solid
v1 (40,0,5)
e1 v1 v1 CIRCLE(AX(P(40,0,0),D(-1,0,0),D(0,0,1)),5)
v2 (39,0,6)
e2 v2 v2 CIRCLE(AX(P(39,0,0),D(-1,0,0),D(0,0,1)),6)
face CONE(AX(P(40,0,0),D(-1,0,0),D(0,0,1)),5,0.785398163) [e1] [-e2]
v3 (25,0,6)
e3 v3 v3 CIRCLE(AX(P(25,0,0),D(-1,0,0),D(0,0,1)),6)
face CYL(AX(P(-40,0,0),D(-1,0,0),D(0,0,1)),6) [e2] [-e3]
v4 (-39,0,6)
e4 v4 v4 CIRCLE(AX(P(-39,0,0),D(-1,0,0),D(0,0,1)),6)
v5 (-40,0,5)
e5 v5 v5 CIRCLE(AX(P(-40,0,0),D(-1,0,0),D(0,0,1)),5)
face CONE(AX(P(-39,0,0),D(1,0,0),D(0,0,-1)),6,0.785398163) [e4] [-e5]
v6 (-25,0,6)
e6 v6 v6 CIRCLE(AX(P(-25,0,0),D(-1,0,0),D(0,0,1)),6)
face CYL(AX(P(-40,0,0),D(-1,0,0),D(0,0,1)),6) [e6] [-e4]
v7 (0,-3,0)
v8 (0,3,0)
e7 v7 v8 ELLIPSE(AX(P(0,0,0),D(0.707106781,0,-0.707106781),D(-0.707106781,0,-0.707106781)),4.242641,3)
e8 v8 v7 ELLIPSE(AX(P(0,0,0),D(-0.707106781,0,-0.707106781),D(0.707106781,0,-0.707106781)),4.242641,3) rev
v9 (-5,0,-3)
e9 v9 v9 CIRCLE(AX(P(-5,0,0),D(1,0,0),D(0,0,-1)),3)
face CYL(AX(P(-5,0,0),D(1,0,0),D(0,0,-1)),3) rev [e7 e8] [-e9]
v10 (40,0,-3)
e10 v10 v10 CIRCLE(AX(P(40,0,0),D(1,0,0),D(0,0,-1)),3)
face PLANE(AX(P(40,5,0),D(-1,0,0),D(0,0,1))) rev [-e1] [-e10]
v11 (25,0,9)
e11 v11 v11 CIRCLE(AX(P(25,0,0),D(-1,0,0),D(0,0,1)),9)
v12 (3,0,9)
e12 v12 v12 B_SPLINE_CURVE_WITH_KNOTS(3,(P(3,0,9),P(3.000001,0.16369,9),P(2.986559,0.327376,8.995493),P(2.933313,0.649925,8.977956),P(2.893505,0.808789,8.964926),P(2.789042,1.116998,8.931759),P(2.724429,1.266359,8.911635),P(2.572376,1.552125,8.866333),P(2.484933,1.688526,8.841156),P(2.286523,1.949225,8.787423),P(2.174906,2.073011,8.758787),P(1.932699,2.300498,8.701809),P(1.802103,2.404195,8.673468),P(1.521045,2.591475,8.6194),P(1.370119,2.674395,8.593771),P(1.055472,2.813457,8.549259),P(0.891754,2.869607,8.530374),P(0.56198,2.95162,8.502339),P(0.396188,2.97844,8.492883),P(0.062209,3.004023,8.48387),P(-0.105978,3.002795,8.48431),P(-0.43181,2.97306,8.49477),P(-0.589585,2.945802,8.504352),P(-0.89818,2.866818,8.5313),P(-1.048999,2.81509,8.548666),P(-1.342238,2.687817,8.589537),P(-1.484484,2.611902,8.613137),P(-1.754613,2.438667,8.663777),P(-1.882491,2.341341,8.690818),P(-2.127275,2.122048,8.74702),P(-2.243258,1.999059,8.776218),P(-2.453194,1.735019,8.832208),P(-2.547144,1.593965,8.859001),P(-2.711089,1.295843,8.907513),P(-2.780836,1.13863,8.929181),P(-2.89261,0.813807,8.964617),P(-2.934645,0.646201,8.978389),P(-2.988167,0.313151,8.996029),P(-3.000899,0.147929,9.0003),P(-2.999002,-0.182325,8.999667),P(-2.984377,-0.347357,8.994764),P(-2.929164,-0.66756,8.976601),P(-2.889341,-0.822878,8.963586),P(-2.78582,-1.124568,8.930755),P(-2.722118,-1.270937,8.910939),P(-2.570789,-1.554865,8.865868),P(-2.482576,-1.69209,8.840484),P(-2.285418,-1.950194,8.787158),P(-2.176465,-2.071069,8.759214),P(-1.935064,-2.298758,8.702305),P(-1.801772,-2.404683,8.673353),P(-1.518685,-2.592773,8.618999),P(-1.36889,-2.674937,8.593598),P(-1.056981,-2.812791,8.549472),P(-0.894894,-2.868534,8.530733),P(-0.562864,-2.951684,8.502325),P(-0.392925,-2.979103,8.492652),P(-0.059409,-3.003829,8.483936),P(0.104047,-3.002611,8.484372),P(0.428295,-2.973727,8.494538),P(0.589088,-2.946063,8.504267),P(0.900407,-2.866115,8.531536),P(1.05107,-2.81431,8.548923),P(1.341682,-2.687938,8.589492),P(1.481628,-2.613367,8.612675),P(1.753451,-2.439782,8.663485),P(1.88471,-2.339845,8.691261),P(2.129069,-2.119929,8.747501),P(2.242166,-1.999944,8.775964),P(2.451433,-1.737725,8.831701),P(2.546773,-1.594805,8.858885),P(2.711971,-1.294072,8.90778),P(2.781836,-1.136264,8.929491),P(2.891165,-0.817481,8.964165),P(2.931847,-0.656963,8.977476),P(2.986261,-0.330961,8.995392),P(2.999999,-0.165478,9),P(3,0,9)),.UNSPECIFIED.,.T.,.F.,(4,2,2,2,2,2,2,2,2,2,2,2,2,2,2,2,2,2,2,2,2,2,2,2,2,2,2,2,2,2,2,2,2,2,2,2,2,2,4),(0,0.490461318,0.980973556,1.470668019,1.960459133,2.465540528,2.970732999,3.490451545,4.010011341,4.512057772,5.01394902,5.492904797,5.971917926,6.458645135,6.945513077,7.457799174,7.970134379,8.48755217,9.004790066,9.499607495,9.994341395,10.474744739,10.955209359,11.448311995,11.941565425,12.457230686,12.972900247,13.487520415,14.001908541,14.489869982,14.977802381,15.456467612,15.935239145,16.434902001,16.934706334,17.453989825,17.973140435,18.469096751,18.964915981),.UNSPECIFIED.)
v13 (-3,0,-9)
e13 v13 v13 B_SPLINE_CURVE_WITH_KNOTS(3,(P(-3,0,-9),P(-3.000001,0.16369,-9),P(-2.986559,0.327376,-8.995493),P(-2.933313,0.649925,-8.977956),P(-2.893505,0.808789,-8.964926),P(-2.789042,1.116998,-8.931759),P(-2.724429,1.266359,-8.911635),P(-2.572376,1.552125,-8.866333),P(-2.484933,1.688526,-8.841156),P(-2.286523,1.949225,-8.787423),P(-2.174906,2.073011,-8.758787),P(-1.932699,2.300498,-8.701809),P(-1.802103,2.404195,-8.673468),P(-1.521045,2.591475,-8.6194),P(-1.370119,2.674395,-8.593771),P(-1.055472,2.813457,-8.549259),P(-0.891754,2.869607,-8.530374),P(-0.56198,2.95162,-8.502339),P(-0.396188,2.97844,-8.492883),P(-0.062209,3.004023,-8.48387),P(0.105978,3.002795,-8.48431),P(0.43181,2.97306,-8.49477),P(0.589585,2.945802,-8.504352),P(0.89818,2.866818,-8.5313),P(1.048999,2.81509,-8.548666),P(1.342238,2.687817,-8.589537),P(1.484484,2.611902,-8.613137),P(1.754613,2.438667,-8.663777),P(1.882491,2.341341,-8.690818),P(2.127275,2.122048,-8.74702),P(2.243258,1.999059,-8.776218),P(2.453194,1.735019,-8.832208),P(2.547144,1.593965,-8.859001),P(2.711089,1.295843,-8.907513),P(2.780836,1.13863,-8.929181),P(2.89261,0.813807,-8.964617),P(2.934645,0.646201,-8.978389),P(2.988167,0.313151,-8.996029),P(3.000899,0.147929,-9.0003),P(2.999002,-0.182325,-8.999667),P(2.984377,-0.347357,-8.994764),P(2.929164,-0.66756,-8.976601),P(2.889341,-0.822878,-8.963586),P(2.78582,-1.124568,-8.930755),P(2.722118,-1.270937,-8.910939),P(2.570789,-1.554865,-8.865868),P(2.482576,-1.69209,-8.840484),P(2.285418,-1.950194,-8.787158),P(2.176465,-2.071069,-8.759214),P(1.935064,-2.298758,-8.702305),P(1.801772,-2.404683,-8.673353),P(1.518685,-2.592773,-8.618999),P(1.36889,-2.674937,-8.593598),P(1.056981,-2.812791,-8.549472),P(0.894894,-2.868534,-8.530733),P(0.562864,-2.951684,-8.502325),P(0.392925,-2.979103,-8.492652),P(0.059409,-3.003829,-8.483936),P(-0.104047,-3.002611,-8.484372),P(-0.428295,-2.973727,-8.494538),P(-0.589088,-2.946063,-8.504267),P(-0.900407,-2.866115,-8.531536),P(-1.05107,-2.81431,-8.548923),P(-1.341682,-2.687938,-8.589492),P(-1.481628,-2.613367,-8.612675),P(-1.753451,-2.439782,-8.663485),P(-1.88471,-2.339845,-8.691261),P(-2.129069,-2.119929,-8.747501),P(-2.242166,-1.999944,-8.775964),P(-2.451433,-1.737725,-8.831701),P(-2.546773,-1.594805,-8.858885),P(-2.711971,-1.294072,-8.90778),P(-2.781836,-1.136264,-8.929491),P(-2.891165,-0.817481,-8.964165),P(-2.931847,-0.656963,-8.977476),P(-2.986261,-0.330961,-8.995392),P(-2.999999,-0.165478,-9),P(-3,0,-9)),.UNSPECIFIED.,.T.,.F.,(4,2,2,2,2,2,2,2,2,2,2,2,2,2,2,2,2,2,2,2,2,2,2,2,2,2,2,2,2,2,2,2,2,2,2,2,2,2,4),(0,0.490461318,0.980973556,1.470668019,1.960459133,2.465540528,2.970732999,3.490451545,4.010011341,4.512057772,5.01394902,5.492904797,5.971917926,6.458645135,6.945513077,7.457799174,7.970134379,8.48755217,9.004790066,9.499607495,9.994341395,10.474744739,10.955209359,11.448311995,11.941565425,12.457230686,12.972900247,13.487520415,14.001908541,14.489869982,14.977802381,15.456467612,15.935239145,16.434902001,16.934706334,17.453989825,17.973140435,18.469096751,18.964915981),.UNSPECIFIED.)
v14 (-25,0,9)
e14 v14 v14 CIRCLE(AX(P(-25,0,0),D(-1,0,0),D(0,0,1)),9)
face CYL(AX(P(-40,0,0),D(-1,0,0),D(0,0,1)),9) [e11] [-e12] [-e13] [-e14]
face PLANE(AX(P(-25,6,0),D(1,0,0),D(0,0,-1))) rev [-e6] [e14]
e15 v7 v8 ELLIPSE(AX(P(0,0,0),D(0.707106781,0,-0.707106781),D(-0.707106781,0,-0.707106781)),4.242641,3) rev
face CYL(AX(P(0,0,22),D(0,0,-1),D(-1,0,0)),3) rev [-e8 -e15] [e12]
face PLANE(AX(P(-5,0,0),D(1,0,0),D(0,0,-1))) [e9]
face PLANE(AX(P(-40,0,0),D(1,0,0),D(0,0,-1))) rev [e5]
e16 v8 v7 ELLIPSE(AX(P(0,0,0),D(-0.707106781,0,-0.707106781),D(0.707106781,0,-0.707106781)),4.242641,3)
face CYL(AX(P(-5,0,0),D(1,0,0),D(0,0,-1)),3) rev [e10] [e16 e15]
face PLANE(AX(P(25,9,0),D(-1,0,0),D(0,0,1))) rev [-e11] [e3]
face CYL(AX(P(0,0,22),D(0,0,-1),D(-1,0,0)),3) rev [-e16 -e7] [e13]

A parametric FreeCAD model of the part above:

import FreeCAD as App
import Part
import Sketcher

V = App.Vector

doc = App.newDocument("Part")
body = doc.addObject("PartDesign::Body", "Body")

# Sketch on XY plane
sketch1 = body.newObject("Sketcher::SketchObject", "Sketch")
sketch1.AttachmentSupport = (doc.getObject("XY_Plane"), [""])
sketch1.MapMode = "FlatFace"
sketch1.addGeometry([
    Part.LineSegment(V(-40, 0, 0), V(40, 0, 0)),  # 0
    Part.LineSegment(V(40, 0, 0), V(40, 5, 0)),  # 1
    Part.LineSegment(V(40, 5, 0), V(39, 6, 0)),  # 2
    Part.LineSegment(V(39, 6, 0), V(25, 6, 0)),  # 3
    Part.LineSegment(V(25, 6, 0), V(25, 9, 0)),  # 4
    Part.LineSegment(V(25, 9, 0), V(-25, 9, 0)),  # 5
    Part.LineSegment(V(-25, 9, 0), V(-25, 6, 0)),  # 6
    Part.LineSegment(V(-25, 6, 0), V(-39, 6, 0)),  # 7
    Part.LineSegment(V(-39, 6, 0), V(-40, 5, 0)),  # 8
    Part.LineSegment(V(-40, 5, 0), V(-40, 0, 0)),  # 9
], False)
sketch1.addConstraint([
    Sketcher.Constraint("Coincident", 0, 2, 1, 1),
    Sketcher.Constraint("Coincident", 1, 2, 2, 1),
    Sketcher.Constraint("Coincident", 2, 2, 3, 1),
    Sketcher.Constraint("Coincident", 3, 2, 4, 1),
    Sketcher.Constraint("Coincident", 4, 2, 5, 1),
    Sketcher.Constraint("Coincident", 5, 2, 6, 1),
    Sketcher.Constraint("Coincident", 6, 2, 7, 1),
    Sketcher.Constraint("Coincident", 7, 2, 8, 1),
    Sketcher.Constraint("Coincident", 8, 2, 9, 1),
    Sketcher.Constraint("Coincident", 9, 2, 0, 1),
    Sketcher.Constraint("Horizontal", 0),
    Sketcher.Constraint("Vertical", 1),
    Sketcher.Constraint("Horizontal", 3),
    Sketcher.Constraint("Vertical", 4),
    Sketcher.Constraint("Horizontal", 5),
    Sketcher.Constraint("Vertical", 6),
    Sketcher.Constraint("Horizontal", 7),
    Sketcher.Constraint("Vertical", 9),
    Sketcher.Constraint("Symmetric", 0, 2, 9, 2, -1, 1),
    Sketcher.Constraint("Symmetric", 3, 2, 6, 2, -2),
    Sketcher.Constraint("Perpendicular", 2, 8),
    Sketcher.Constraint("Horizontal", 1, 2, 8, 2),
    Sketcher.Constraint("Equal", 3, 7),
    Sketcher.Constraint("DistanceX", 0, 1, 0, 2, 80.0),
    Sketcher.Constraint("DistanceX", 3, 2, 3, 1, 14.0),
    Sketcher.Constraint("DistanceX", 5, 2, 5, 1, 50.0),
    Sketcher.Constraint("DistanceY", 1, 1, 1, 2, 5.0),
    Sketcher.Constraint("DistanceY", 4, 1, 4, 2, 3.0),
])
revolution = body.newObject("PartDesign::Revolution", "Revolution")
revolution.Profile = sketch1
revolution.ReferenceAxis = (sketch1, ["H_Axis"])
revolution.Angle = 360

# Sketch on XY plane
sketch2 = body.newObject("Sketcher::SketchObject", "Sketch001")
sketch2.AttachmentSupport = (doc.getObject("XY_Plane"), [""])
sketch2.MapMode = "FlatFace"
sketch2.addGeometry(Part.Circle(V(0, 0, 0), V(0, 0, 1), 3), False)
sketch2.addConstraint([
    Sketcher.Constraint("Coincident", 0, 3, -1, 1),
    Sketcher.Constraint("Diameter", 0, 6.0),
])
pocket1 = body.newObject("PartDesign::Pocket", "Pocket")
pocket1.Profile = sketch2
pocket1.Type = "ThroughAll"
pocket1.Midplane = True

# Sketch on YZ plane
sketch3 = body.newObject("Sketcher::SketchObject", "Sketch002")
sketch3.AttachmentSupport = (doc.getObject("YZ_Plane"), [""])
sketch3.MapMode = "FlatFace"
sketch3.AttachmentOffset = App.Placement(V(0, 0, 40), App.Rotation())
sketch3.addGeometry(Part.Circle(V(0, 0, 0), V(0, 0, 1), 3), False)
sketch3.addConstraint([
    Sketcher.Constraint("Coincident", 0, 3, -1, 1),
    Sketcher.Constraint("Diameter", 0, 6.0),
])
pocket2 = body.newObject("PartDesign::Pocket", "Pocket001")
pocket2.Profile = sketch3
pocket2.Length = 45

doc.recompute()
